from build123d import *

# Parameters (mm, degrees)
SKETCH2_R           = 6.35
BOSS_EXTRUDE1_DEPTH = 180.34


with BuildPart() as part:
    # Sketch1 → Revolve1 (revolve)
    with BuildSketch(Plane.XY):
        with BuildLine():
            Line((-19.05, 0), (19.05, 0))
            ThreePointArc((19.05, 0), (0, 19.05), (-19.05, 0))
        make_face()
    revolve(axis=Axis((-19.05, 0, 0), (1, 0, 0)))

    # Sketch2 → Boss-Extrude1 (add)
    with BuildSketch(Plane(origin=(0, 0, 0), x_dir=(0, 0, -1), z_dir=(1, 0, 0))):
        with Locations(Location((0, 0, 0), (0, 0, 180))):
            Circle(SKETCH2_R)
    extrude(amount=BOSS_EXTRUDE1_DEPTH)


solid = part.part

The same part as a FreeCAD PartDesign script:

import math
import FreeCAD as App
import Part
import Sketcher

V = App.Vector
Q = App.Units.Quantity

doc = App.newDocument("Part")
body = doc.addObject("PartDesign::Body", "Body")

# Sketch on XY plane
sketch1 = body.newObject("Sketcher::SketchObject", "Sketch")
sketch1.AttachmentSupport = (doc.getObject("XY_Plane"), [""])
sketch1.MapMode = "FlatFace"
sketch1.addGeometry([
    Part.LineSegment(V(-19.05, 0, 0), V(19.05, 0, 0)),
    Part.ArcOfCircle(Part.Circle(V(0, 0, 0), V(0, 0, 1), 19.05), math.radians(0), math.radians(180)),
], False)
sketch1.addConstraint([
    Sketcher.Constraint("Coincident", 0, 1, 1, 2),
    Sketcher.Constraint("Coincident", 1, 1, 0, 2),
    Sketcher.Constraint("Horizontal", 0),
    Sketcher.Constraint("Coincident", 1, 3, -1, 1),
    Sketcher.Constraint("PointOnObject", 0, 1, -1),
    Sketcher.Constraint("Radius", 1, Q("0.75 in")),
])
revolution = body.newObject("PartDesign::Revolution", "Revolution")
revolution.Profile = sketch1
revolution.ReferenceAxis = (sketch1, ["H_Axis"])
revolution.Angle = 360

# Sketch on YZ plane
sketch2 = body.newObject("Sketcher::SketchObject", "Sketch001")
sketch2.AttachmentSupport = (doc.getObject("YZ_Plane"), [""])
sketch2.MapMode = "FlatFace"
sketch2.addGeometry(Part.Circle(V(0, 0, 0), V(0, 0, 1), 6.35), False)
sketch2.addConstraint([
    Sketcher.Constraint("Coincident", 0, 3, -1, 1),
    Sketcher.Constraint("Diameter", 0, Q("0.5 in")),
])
pad1 = body.newObject("PartDesign::Pad", "Pad")
pad1.Profile = sketch2
pad1.Length = Q("7.1 in")

doc.recompute()
